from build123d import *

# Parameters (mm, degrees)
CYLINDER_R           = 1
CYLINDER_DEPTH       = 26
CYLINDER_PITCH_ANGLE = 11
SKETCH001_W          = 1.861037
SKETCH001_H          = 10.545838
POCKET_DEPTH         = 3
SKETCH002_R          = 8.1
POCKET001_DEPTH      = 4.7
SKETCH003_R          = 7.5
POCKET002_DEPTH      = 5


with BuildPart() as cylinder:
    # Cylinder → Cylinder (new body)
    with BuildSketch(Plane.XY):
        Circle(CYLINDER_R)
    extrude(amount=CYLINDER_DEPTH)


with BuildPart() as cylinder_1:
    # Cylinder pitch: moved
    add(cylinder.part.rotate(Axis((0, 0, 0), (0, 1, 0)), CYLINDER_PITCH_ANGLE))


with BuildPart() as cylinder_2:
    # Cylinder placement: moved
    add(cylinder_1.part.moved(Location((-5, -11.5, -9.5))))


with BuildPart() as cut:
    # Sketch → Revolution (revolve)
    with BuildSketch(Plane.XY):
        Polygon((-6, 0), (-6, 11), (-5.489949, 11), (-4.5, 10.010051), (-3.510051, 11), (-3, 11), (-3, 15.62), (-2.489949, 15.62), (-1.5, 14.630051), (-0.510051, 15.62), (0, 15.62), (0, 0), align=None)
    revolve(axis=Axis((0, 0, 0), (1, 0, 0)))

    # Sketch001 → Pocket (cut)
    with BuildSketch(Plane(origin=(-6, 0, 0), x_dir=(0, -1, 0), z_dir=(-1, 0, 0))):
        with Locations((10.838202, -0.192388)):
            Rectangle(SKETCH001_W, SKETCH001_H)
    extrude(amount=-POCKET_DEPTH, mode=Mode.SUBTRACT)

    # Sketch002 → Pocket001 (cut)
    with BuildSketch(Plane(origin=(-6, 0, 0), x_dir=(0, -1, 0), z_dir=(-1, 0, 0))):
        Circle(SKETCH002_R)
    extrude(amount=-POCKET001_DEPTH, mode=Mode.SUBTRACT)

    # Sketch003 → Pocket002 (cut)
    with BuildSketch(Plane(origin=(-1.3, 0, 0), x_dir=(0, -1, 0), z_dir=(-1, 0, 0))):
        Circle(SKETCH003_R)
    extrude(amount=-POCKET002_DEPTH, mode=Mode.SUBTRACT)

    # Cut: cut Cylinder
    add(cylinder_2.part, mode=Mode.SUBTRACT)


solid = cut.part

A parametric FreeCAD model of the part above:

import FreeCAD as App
import Part
import Sketcher
from FreeCAD import Vector


def add_polygon(sketch, points):
    """Adds a closed chain of lines whose ends are joined by coincident constraints."""
    first, n = sketch.GeometryCount, len(points)
    for a, b in zip(points, points[1:] + points[:1]):
        sketch.addGeometry(Part.LineSegment(App.Vector(*a, 0), App.Vector(*b, 0)), False)
    for i in range(n):
        sketch.addConstraint(Sketcher.Constraint("Coincident", first + i, 2, first + (i + 1) % n, 1))

doc = App.newDocument("Part")
body = doc.addObject("PartDesign::Body", "Body")

# Sketch on XY plane
sketch1 = body.newObject("Sketcher::SketchObject", "Sketch")
sketch1.AttachmentSupport = (doc.getObject("XY_Plane"), [""])
sketch1.MapMode = "FlatFace"
sketch1.addGeometry(Part.Circle(Vector(0, 0, 0), Vector(0, 0, 1), 1), False)
sketch1.addConstraint([
    Sketcher.Constraint("Coincident", 0, 3, -1, 1),
    Sketcher.Constraint("Diameter", 0, 2.0),
])
pad1 = body.newObject("PartDesign::Pad", "Pad")
pad1.Profile = sketch1
pad1.Length = 26
body2 = doc.addObject("PartDesign::Body", "Body001")
doc.recompute()

body.Placement = App.Placement(Vector(0, 0, 0), App.Rotation(Vector(0, 1, 0), 11))
boolean = body2.newObject("PartDesign::Boolean", "Boolean")
boolean.Type = "Fuse"
boolean.addObjects([body])
body3 = doc.addObject("PartDesign::Body", "Body002")
doc.recompute()

body2.Placement = App.Placement(Vector(-5, -11.5, -9.5), App.Rotation(Vector(0, 0, 1), 0))
boolean2 = body3.newObject("PartDesign::Boolean", "Boolean001")
boolean2.Type = "Fuse"
boolean2.addObjects([body2])
body4 = doc.addObject("PartDesign::Body", "Body003")

# Sketch on XY plane
sketch2 = body4.newObject("Sketcher::SketchObject", "Sketch001")
sketch2.AttachmentSupport = (doc.getObject("XY_Plane003"), [""])
sketch2.MapMode = "FlatFace"
add_polygon(sketch2, [(-6, 11), (-6, 0), (0, 0), (0, 15.6), (-0.5, 15.6), (-1.5, 14.6), (-2.5, 15.6), (-3, 15.6), (-3, 11), (-3.5, 11), (-4.5, 10), (-5.5, 11)])  # lines 0-11
sketch2.addConstraint([
    Sketcher.Constraint("Vertical", 0),
    Sketcher.Constraint("Horizontal", 1),
    Sketcher.Constraint("Vertical", 2),
    Sketcher.Constraint("Horizontal", 3),
    Sketcher.Constraint("Horizontal", 6),
    Sketcher.Constraint("Vertical", 7),
    Sketcher.Constraint("Horizontal", 8),
    Sketcher.Constraint("Horizontal", 11),
    Sketcher.Constraint("Coincident", 1, 2, -1, 1),
    Sketcher.Constraint("Perpendicular", 4, 5),
    Sketcher.Constraint("Perpendicular", 5, 9),
    Sketcher.Constraint("Perpendicular", 9, 10),
    Sketcher.Constraint("Horizontal", 3, 2, 5, 2),
    Sketcher.Constraint("Horizontal", 8, 2, 10, 2),
    Sketcher.Constraint("Equal", 3, 6),
    Sketcher.Constraint("Equal", 6, 8),
    Sketcher.Constraint("Equal", 8, 11),
    Sketcher.Constraint("Equal", 4, 5),
    Sketcher.Constraint("Equal", 5, 9),
    Sketcher.Constraint("DistanceX", 1, 1, 1, 2, 6.0),
    Sketcher.Constraint("DistanceY", 0, 2, 0, 1, 11.0),
    Sketcher.Constraint("Distance", 4, 1.399999),
    Sketcher.Constraint("DistanceY", 2, 1, 2, 2, 15.62),
])
revolution = body4.newObject("PartDesign::Revolution", "Revolution")
revolution.Profile = sketch2
revolution.ReferenceAxis = (sketch2, ["H_Axis"])
revolution.Angle = 360

# Sketch on YZ plane
sketch3 = body4.newObject("Sketcher::SketchObject", "Sketch002")
sketch3.AttachmentSupport = (doc.getObject("YZ_Plane003"), [""])
sketch3.MapMode = "FlatFace"
sketch3.AttachmentOffset = App.Placement(Vector(0, 0, -6), App.Rotation())
add_polygon(sketch3, [(-9.9, 5.1), (-9.9, -5.5), (-11.8, -5.5), (-11.8, 5.1)])  # lines 0-3
sketch3.addConstraint([
    Sketcher.Constraint("Vertical", 0),
    Sketcher.Constraint("Horizontal", 1),
    Sketcher.Constraint("Vertical", 2),
    Sketcher.Constraint("Horizontal", 3),
    Sketcher.Constraint("DistanceX", 1, 2, 1, 1, 1.861037),
    Sketcher.Constraint("DistanceY", 0, 2, 0, 1, 10.545838),
    Sketcher.Constraint("DistanceX", 1, 2, -1, 1, 11.768721),
    Sketcher.Constraint("DistanceY", -1, 1, 2, 2, 5.080531),
])
pocket1 = body4.newObject("PartDesign::Pocket", "Pocket")
pocket1.Profile = sketch3
pocket1.Length = 3
pocket1.Reversed = True

# Sketch on YZ plane
sketch4 = body4.newObject("Sketcher::SketchObject", "Sketch003")
sketch4.AttachmentSupport = (doc.getObject("YZ_Plane003"), [""])
sketch4.MapMode = "FlatFace"
sketch4.AttachmentOffset = App.Placement(Vector(0, 0, -6), App.Rotation())
sketch4.addGeometry(Part.Circle(Vector(0, 0, 0), Vector(0, 0, 1), 8), False)
sketch4.addConstraint([
    Sketcher.Constraint("Coincident", 0, 3, -1, 1),
    Sketcher.Constraint("Diameter", 0, 16.2),
])
pocket2 = body4.newObject("PartDesign::Pocket", "Pocket001")
pocket2.Profile = sketch4
pocket2.Length = 4.7
pocket2.Reversed = True

# Sketch on YZ plane
sketch5 = body4.newObject("Sketcher::SketchObject", "Sketch004")
sketch5.AttachmentSupport = (doc.getObject("YZ_Plane003"), [""])
sketch5.MapMode = "FlatFace"
sketch5.AttachmentOffset = App.Placement(Vector(0, 0, -1.3), App.Rotation())
sketch5.addGeometry(Part.Circle(Vector(0, 0, 0), Vector(0, 0, 1), 8), False)
sketch5.addConstraint([
    Sketcher.Constraint("Coincident", 0, 3, -1, 1),
    Sketcher.Constraint("Diameter", 0, 15.0),
])
pocket3 = body4.newObject("PartDesign::Pocket", "Pocket002")
pocket3.Profile = sketch5
pocket3.Length = 5
pocket3.Reversed = True
doc.recompute()

boolean3 = body4.newObject("PartDesign::Boolean", "Boolean002")
boolean3.Type = "Cut"
boolean3.addObjects([body3])

doc.recompute()
